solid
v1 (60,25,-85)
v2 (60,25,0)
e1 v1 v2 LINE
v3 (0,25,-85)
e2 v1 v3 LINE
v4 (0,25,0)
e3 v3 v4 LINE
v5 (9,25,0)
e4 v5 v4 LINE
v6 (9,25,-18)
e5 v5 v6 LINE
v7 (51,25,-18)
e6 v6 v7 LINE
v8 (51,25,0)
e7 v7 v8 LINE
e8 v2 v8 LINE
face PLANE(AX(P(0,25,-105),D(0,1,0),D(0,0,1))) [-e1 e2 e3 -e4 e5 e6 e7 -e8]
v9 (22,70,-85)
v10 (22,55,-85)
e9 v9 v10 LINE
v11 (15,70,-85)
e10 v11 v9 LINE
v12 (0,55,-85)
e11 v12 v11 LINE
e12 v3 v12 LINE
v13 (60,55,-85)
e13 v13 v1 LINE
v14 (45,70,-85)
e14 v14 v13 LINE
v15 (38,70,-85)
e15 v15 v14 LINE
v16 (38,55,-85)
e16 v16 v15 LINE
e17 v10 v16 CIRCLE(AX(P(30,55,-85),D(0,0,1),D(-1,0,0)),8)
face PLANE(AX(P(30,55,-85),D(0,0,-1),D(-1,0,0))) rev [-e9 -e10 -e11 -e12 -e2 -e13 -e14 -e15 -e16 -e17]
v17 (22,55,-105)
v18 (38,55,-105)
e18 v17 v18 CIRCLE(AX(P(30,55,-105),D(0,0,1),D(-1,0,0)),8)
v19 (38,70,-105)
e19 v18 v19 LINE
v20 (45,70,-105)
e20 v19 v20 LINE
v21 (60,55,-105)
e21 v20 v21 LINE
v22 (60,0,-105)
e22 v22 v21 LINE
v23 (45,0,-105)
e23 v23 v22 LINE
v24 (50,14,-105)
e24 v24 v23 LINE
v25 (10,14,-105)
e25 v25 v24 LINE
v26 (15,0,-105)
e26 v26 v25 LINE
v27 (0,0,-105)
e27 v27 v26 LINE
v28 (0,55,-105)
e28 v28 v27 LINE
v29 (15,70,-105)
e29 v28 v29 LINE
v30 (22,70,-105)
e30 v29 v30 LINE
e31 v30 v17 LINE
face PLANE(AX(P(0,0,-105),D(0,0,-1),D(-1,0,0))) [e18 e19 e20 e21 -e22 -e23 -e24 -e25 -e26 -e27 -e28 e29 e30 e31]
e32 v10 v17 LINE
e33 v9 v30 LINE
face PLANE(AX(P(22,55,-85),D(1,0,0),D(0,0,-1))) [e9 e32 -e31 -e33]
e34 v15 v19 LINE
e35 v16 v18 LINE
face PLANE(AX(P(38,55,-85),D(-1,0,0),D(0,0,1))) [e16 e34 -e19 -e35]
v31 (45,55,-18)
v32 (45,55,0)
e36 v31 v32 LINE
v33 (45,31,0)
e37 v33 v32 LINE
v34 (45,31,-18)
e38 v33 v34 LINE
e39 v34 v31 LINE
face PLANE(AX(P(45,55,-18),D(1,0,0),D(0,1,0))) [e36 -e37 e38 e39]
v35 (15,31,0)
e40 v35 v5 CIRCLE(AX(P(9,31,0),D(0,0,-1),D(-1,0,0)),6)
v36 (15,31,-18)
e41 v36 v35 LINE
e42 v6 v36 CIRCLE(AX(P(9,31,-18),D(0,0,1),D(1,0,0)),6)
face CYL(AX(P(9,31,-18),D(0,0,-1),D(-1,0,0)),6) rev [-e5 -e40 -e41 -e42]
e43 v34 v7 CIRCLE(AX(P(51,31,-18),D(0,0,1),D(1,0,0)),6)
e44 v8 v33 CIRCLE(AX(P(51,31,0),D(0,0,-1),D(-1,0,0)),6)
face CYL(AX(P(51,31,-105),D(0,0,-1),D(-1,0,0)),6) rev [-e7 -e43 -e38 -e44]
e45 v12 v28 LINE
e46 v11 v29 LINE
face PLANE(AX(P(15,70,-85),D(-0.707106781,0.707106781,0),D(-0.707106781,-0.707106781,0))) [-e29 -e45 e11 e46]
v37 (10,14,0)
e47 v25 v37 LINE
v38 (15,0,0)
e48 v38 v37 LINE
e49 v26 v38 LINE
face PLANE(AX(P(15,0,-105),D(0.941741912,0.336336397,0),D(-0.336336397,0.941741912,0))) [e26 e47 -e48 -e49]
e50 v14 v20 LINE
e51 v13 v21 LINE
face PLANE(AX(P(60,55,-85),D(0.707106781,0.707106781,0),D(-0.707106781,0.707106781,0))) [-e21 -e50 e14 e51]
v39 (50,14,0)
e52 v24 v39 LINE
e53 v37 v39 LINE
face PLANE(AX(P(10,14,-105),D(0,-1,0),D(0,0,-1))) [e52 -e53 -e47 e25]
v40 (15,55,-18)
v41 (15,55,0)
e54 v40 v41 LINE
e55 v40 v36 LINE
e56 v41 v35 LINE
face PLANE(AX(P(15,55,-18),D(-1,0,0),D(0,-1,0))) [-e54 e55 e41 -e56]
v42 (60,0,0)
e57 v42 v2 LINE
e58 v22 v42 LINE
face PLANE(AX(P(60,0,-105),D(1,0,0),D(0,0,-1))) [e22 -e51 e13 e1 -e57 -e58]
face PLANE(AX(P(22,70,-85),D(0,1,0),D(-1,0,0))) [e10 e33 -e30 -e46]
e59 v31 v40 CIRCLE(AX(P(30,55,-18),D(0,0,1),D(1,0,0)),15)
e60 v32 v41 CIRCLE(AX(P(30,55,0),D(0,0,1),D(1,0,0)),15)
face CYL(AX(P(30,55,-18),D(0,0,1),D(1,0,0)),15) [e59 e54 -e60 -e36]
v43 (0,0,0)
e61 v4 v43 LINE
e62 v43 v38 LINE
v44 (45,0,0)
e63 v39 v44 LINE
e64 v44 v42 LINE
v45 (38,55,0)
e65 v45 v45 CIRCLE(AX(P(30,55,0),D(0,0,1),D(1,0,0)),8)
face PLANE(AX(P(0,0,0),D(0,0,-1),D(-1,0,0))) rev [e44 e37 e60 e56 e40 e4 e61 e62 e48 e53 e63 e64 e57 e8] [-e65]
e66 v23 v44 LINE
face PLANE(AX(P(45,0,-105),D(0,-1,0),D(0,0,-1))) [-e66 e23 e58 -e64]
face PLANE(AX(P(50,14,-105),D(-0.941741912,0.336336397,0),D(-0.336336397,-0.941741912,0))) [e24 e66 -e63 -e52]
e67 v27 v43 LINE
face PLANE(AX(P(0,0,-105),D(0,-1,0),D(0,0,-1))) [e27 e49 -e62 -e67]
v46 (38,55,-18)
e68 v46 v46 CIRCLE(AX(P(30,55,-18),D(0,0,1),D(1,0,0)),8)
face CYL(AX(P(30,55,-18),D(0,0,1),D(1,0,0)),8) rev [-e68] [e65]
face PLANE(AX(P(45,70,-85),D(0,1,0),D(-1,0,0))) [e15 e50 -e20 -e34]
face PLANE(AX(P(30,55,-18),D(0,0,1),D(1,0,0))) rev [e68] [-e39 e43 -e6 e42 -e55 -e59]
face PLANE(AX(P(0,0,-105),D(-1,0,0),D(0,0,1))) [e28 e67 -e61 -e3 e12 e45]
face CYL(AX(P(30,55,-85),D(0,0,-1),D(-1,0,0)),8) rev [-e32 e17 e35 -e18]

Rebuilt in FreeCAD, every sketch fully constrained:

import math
import FreeCAD as App
import Part
import Sketcher
from FreeCAD import Vector
Q = App.Units.Quantity


def edges_at(feature, points):
    """Names of the edges that pass closest to the given points."""
    edges = feature.Shape.Edges
    near = lambda p: min(range(len(edges)), key=lambda i: edges[i].distToShape(Part.Vertex(*p))[0])
    return sorted({f"Edge{near(p) + 1}" for p in points})

doc = App.newDocument("Part")
params = doc.addObject("Spreadsheet::Sheet", "Params")
for row, (alias, value) in enumerate([
    ("sketch1_width", "15 mm"),
    ("sketch1_width2", "60 mm"),
    ("sketch1_width3", "40 mm"),
    ("sketch1_height", "25 mm"),
    ("pad1_length", "105 mm"),
    ("sketch2_diameter", "16 mm"),
    ("sketch2_radius", "15 mm"),
    ("pad2_length", "18 mm"),
    ("fillet_radius", "6 mm"),
    ("sketch3_radius", "8 mm"),
    ("sketch3_width", "60 mm"),
    ("sketch3_width2", "7 mm"),
    ("sketch3_height", "30 mm"),
    ("pad3_length", "20 mm"),
], start=1):
    params.set(f"A{row}", alias)
    params.set(f"B{row}", "=" + value)
    params.setAlias(f"B{row}", alias)

body = doc.addObject("PartDesign::Body", "Body")

# Sketch on XY plane
sketch1 = doc.addObject("Sketcher::SketchObject", "Sketch")
body.addObject(sketch1)
sketch1.AttachmentSupport = (doc.XY_Plane, [""])
sketch1.MapMode = "FlatFace"
sketch1.addGeometry(Part.LineSegment(Vector(45, 0, 0), Vector(60, 0, 0)), False)
sketch1.addGeometry(Part.LineSegment(Vector(60, 0, 0), Vector(60, 25, 0)), False)
sketch1.addGeometry(Part.LineSegment(Vector(60, 25, 0), Vector(0, 25, 0)), False)
sketch1.addGeometry(Part.LineSegment(Vector(0, 25, 0), Vector(0, 0, 0)), False)
sketch1.addGeometry(Part.LineSegment(Vector(0, 0, 0), Vector(15, 0, 0)), False)
sketch1.addGeometry(Part.LineSegment(Vector(15, 0, 0), Vector(10, 14, 0)), False)
sketch1.addGeometry(Part.LineSegment(Vector(10, 14, 0), Vector(50, 14, 0)), False)
sketch1.addGeometry(Part.LineSegment(Vector(50, 14, 0), Vector(45, 0, 0)), False)
sketch1.addConstraint(Sketcher.Constraint("Coincident", 0, 2, 1, 1))
sketch1.addConstraint(Sketcher.Constraint("Coincident", 1, 2, 2, 1))
sketch1.addConstraint(Sketcher.Constraint("Coincident", 2, 2, 3, 1))
sketch1.addConstraint(Sketcher.Constraint("Coincident", 3, 2, 4, 1))
sketch1.addConstraint(Sketcher.Constraint("Coincident", 4, 2, 5, 1))
sketch1.addConstraint(Sketcher.Constraint("Coincident", 5, 2, 6, 1))
sketch1.addConstraint(Sketcher.Constraint("Coincident", 6, 2, 7, 1))
sketch1.addConstraint(Sketcher.Constraint("Coincident", 7, 2, 0, 1))
sketch1.addConstraint(Sketcher.Constraint("Horizontal", 0))
sketch1.addConstraint(Sketcher.Constraint("Vertical", 1))
sketch1.addConstraint(Sketcher.Constraint("Horizontal", 2))
sketch1.addConstraint(Sketcher.Constraint("Vertical", 3))
sketch1.addConstraint(Sketcher.Constraint("Horizontal", 4))
sketch1.addConstraint(Sketcher.Constraint("Horizontal", 6))
sketch1.addConstraint(Sketcher.Constraint("Coincident", 3, 2, -1, 1))
sketch1.addConstraint(Sketcher.Constraint("PointOnObject", 0, 2, -1))
sketch1.addConstraint(Sketcher.Constraint("Equal", 0, 4))
sketch1.addConstraint(Sketcher.Constraint("Equal", 5, 7))
sketch1.addConstraint(Sketcher.Constraint("DistanceX", 0, 1, 0, 2, Q("15 mm")))
sketch1.addConstraint(Sketcher.Constraint("DistanceX", 2, 2, 2, 1, Q("60 mm")))
sketch1.addConstraint(Sketcher.Constraint("DistanceX", 6, 1, 6, 2, Q("40 mm")))
sketch1.addConstraint(Sketcher.Constraint("DistanceY", 1, 1, 1, 2, Q("25 mm")))
sketch1.addConstraint(Sketcher.Constraint("DistanceY", -1, 1, 5, 2, Q("14 mm")))
sketch1.setExpression("Constraints[18]", "Params.sketch1_width")
sketch1.setExpression("Constraints[19]", "Params.sketch1_width2")
sketch1.setExpression("Constraints[20]", "Params.sketch1_width3")
sketch1.setExpression("Constraints[21]", "Params.sketch1_height")
pad1 = doc.addObject("PartDesign::Pad", "Pad")
body.addObject(pad1)
pad1.Profile = sketch1
pad1.setExpression("Length", "Params.pad1_length")
pad1.Reversed = True

# Sketch on XY plane
sketch2 = doc.addObject("Sketcher::SketchObject", "Sketch001")
body.addObject(sketch2)
sketch2.AttachmentSupport = (doc.XY_Plane, [""])
sketch2.MapMode = "FlatFace"
sketch2.addGeometry(Part.LineSegment(Vector(15, 55, 0), Vector(15, 25, 0)), False)
sketch2.addGeometry(Part.LineSegment(Vector(15, 25, 0), Vector(45, 25, 0)), False)
sketch2.addGeometry(Part.LineSegment(Vector(45, 25, 0), Vector(45, 55, 0)), False)
sketch2.addGeometry(Part.ArcOfCircle(Part.Circle(Vector(30, 55, 0), Vector(0, 0, 1), 15), math.radians(0), math.radians(180)), False)
sketch2.addGeometry(Part.Circle(Vector(30, 55, 0), Vector(0, 0, 1), 8), False)
sketch2.addConstraint(Sketcher.Constraint("Coincident", 0, 2, 1, 1))
sketch2.addConstraint(Sketcher.Constraint("Coincident", 1, 2, 2, 1))
sketch2.addConstraint(Sketcher.Constraint("Tangent", 2, 2, 3, 1))
sketch2.addConstraint(Sketcher.Constraint("Tangent", 3, 2, 0, 1))
sketch2.addConstraint(Sketcher.Constraint("Vertical", 0))
sketch2.addConstraint(Sketcher.Constraint("Horizontal", 1))
sketch2.addConstraint(Sketcher.Constraint("Vertical", 2))
sketch2.addConstraint(Sketcher.Constraint("Coincident", 4, 3, 3, 3))
sketch2.addConstraint(Sketcher.Constraint("Equal", 1, 0))
sketch2.addConstraint(Sketcher.Constraint("Diameter", 4, Q("16 mm")))
sketch2.addConstraint(Sketcher.Constraint("Radius", 3, Q("15 mm")))
sketch2.addConstraint(Sketcher.Constraint("DistanceX", -1, 1, 3, 3, Q("30 mm")))
sketch2.addConstraint(Sketcher.Constraint("DistanceY", -1, 1, 3, 3, Q("55 mm")))
sketch2.setExpression("Constraints[9]", "Params.sketch2_diameter")
sketch2.setExpression("Constraints[10]", "Params.sketch2_radius")
pad2 = doc.addObject("PartDesign::Pad", "Pad001")
body.addObject(pad2)
pad2.Profile = sketch2
pad2.setExpression("Length", "Params.pad2_length")
pad2.Reversed = True
doc.recompute()

fillet = doc.addObject("PartDesign::Fillet", "Fillet")
body.addObject(fillet)
fillet.Base = (pad2, edges_at(pad2, [(45, 25, -9), (15, 25, -9)]))
fillet.setExpression("Radius", "Params.fillet_radius")

# Sketch on XY plane
sketch3 = doc.addObject("Sketcher::SketchObject", "Sketch002")
body.addObject(sketch3)
sketch3.AttachmentSupport = (doc.XY_Plane, [""])
sketch3.MapMode = "FlatFace"
sketch3.AttachmentOffset = App.Placement(Vector(0, 0, -85), App.Rotation())
sketch3.addGeometry(Part.LineSegment(Vector(45, 70, 0), Vector(60, 55, 0)), False)
sketch3.addGeometry(Part.LineSegment(Vector(60, 55, 0), Vector(60, 25, 0)), False)
sketch3.addGeometry(Part.LineSegment(Vector(60, 25, 0), Vector(0, 25, 0)), False)
sketch3.addGeometry(Part.LineSegment(Vector(0, 25, 0), Vector(0, 55, 0)), False)
sketch3.addGeometry(Part.LineSegment(Vector(0, 55, 0), Vector(15, 70, 0)), False)
sketch3.addGeometry(Part.LineSegment(Vector(15, 70, 0), Vector(22, 70, 0)), False)
sketch3.addGeometry(Part.LineSegment(Vector(22, 70, 0), Vector(22, 55, 0)), False)
sketch3.addGeometry(Part.ArcOfCircle(Part.Circle(Vector(30, 55, 0), Vector(0, 0, 1), 8), math.radians(180), math.radians(360)), False)
sketch3.addGeometry(Part.LineSegment(Vector(38, 55, 0), Vector(38, 70, 0)), False)
sketch3.addGeometry(Part.LineSegment(Vector(38, 70, 0), Vector(45, 70, 0)), False)
sketch3.addConstraint(Sketcher.Constraint("Coincident", 0, 2, 1, 1))
sketch3.addConstraint(Sketcher.Constraint("Coincident", 1, 2, 2, 1))
sketch3.addConstraint(Sketcher.Constraint("Coincident", 2, 2, 3, 1))
sketch3.addConstraint(Sketcher.Constraint("Coincident", 3, 2, 4, 1))
sketch3.addConstraint(Sketcher.Constraint("Coincident", 4, 2, 5, 1))
sketch3.addConstraint(Sketcher.Constraint("Coincident", 5, 2, 6, 1))
sketch3.addConstraint(Sketcher.Constraint("Tangent", 6, 2, 7, 1))
sketch3.addConstraint(Sketcher.Constraint("Tangent", 7, 2, 8, 1))
sketch3.addConstraint(Sketcher.Constraint("Coincident", 8, 2, 9, 1))
sketch3.addConstraint(Sketcher.Constraint("Coincident", 9, 2, 0, 1))
sketch3.addConstraint(Sketcher.Constraint("Vertical", 1))
sketch3.addConstraint(Sketcher.Constraint("Horizontal", 2))
sketch3.addConstraint(Sketcher.Constraint("Vertical", 3))
sketch3.addConstraint(Sketcher.Constraint("Horizontal", 5))
sketch3.addConstraint(Sketcher.Constraint("Vertical", 6))
sketch3.addConstraint(Sketcher.Constraint("Vertical", 8))
sketch3.addConstraint(Sketcher.Constraint("Horizontal", 9))
sketch3.addConstraint(Sketcher.Constraint("PointOnObject", 2, 2, -2))
sketch3.addConstraint(Sketcher.Constraint("Perpendicular", 0, 4))
sketch3.addConstraint(Sketcher.Constraint("Horizontal", 7, 3, 0, 2))
sketch3.addConstraint(Sketcher.Constraint("Horizontal", 0, 2, 3, 2))
sketch3.addConstraint(Sketcher.Constraint("Horizontal", 5, 2, 8, 2))
sketch3.addConstraint(Sketcher.Constraint("Equal", 5, 9))
sketch3.addConstraint(Sketcher.Constraint("Equal", 0, 4))
sketch3.addConstraint(Sketcher.Constraint("Radius", 7, Q("8 mm")))
sketch3.addConstraint(Sketcher.Constraint("DistanceX", 2, 2, 2, 1, Q("60 mm")))
sketch3.addConstraint(Sketcher.Constraint("DistanceX", 5, 1, 5, 2, Q("7 mm")))
sketch3.addConstraint(Sketcher.Constraint("DistanceY", 1, 2, 1, 1, Q("30 mm")))
sketch3.addConstraint(Sketcher.Constraint("DistanceY", -1, 1, 7, 3, Q("55 mm")))
sketch3.setExpression("Constraints[24]", "Params.sketch3_radius")
sketch3.setExpression("Constraints[25]", "Params.sketch3_width")
sketch3.setExpression("Constraints[26]", "Params.sketch3_width2")
sketch3.setExpression("Constraints[27]", "Params.sketch3_height")
pad3 = doc.addObject("PartDesign::Pad", "Pad002")
body.addObject(pad3)
pad3.Profile = sketch3
pad3.setExpression("Length", "Params.pad3_length")
pad3.Reversed = True

doc.recompute()
